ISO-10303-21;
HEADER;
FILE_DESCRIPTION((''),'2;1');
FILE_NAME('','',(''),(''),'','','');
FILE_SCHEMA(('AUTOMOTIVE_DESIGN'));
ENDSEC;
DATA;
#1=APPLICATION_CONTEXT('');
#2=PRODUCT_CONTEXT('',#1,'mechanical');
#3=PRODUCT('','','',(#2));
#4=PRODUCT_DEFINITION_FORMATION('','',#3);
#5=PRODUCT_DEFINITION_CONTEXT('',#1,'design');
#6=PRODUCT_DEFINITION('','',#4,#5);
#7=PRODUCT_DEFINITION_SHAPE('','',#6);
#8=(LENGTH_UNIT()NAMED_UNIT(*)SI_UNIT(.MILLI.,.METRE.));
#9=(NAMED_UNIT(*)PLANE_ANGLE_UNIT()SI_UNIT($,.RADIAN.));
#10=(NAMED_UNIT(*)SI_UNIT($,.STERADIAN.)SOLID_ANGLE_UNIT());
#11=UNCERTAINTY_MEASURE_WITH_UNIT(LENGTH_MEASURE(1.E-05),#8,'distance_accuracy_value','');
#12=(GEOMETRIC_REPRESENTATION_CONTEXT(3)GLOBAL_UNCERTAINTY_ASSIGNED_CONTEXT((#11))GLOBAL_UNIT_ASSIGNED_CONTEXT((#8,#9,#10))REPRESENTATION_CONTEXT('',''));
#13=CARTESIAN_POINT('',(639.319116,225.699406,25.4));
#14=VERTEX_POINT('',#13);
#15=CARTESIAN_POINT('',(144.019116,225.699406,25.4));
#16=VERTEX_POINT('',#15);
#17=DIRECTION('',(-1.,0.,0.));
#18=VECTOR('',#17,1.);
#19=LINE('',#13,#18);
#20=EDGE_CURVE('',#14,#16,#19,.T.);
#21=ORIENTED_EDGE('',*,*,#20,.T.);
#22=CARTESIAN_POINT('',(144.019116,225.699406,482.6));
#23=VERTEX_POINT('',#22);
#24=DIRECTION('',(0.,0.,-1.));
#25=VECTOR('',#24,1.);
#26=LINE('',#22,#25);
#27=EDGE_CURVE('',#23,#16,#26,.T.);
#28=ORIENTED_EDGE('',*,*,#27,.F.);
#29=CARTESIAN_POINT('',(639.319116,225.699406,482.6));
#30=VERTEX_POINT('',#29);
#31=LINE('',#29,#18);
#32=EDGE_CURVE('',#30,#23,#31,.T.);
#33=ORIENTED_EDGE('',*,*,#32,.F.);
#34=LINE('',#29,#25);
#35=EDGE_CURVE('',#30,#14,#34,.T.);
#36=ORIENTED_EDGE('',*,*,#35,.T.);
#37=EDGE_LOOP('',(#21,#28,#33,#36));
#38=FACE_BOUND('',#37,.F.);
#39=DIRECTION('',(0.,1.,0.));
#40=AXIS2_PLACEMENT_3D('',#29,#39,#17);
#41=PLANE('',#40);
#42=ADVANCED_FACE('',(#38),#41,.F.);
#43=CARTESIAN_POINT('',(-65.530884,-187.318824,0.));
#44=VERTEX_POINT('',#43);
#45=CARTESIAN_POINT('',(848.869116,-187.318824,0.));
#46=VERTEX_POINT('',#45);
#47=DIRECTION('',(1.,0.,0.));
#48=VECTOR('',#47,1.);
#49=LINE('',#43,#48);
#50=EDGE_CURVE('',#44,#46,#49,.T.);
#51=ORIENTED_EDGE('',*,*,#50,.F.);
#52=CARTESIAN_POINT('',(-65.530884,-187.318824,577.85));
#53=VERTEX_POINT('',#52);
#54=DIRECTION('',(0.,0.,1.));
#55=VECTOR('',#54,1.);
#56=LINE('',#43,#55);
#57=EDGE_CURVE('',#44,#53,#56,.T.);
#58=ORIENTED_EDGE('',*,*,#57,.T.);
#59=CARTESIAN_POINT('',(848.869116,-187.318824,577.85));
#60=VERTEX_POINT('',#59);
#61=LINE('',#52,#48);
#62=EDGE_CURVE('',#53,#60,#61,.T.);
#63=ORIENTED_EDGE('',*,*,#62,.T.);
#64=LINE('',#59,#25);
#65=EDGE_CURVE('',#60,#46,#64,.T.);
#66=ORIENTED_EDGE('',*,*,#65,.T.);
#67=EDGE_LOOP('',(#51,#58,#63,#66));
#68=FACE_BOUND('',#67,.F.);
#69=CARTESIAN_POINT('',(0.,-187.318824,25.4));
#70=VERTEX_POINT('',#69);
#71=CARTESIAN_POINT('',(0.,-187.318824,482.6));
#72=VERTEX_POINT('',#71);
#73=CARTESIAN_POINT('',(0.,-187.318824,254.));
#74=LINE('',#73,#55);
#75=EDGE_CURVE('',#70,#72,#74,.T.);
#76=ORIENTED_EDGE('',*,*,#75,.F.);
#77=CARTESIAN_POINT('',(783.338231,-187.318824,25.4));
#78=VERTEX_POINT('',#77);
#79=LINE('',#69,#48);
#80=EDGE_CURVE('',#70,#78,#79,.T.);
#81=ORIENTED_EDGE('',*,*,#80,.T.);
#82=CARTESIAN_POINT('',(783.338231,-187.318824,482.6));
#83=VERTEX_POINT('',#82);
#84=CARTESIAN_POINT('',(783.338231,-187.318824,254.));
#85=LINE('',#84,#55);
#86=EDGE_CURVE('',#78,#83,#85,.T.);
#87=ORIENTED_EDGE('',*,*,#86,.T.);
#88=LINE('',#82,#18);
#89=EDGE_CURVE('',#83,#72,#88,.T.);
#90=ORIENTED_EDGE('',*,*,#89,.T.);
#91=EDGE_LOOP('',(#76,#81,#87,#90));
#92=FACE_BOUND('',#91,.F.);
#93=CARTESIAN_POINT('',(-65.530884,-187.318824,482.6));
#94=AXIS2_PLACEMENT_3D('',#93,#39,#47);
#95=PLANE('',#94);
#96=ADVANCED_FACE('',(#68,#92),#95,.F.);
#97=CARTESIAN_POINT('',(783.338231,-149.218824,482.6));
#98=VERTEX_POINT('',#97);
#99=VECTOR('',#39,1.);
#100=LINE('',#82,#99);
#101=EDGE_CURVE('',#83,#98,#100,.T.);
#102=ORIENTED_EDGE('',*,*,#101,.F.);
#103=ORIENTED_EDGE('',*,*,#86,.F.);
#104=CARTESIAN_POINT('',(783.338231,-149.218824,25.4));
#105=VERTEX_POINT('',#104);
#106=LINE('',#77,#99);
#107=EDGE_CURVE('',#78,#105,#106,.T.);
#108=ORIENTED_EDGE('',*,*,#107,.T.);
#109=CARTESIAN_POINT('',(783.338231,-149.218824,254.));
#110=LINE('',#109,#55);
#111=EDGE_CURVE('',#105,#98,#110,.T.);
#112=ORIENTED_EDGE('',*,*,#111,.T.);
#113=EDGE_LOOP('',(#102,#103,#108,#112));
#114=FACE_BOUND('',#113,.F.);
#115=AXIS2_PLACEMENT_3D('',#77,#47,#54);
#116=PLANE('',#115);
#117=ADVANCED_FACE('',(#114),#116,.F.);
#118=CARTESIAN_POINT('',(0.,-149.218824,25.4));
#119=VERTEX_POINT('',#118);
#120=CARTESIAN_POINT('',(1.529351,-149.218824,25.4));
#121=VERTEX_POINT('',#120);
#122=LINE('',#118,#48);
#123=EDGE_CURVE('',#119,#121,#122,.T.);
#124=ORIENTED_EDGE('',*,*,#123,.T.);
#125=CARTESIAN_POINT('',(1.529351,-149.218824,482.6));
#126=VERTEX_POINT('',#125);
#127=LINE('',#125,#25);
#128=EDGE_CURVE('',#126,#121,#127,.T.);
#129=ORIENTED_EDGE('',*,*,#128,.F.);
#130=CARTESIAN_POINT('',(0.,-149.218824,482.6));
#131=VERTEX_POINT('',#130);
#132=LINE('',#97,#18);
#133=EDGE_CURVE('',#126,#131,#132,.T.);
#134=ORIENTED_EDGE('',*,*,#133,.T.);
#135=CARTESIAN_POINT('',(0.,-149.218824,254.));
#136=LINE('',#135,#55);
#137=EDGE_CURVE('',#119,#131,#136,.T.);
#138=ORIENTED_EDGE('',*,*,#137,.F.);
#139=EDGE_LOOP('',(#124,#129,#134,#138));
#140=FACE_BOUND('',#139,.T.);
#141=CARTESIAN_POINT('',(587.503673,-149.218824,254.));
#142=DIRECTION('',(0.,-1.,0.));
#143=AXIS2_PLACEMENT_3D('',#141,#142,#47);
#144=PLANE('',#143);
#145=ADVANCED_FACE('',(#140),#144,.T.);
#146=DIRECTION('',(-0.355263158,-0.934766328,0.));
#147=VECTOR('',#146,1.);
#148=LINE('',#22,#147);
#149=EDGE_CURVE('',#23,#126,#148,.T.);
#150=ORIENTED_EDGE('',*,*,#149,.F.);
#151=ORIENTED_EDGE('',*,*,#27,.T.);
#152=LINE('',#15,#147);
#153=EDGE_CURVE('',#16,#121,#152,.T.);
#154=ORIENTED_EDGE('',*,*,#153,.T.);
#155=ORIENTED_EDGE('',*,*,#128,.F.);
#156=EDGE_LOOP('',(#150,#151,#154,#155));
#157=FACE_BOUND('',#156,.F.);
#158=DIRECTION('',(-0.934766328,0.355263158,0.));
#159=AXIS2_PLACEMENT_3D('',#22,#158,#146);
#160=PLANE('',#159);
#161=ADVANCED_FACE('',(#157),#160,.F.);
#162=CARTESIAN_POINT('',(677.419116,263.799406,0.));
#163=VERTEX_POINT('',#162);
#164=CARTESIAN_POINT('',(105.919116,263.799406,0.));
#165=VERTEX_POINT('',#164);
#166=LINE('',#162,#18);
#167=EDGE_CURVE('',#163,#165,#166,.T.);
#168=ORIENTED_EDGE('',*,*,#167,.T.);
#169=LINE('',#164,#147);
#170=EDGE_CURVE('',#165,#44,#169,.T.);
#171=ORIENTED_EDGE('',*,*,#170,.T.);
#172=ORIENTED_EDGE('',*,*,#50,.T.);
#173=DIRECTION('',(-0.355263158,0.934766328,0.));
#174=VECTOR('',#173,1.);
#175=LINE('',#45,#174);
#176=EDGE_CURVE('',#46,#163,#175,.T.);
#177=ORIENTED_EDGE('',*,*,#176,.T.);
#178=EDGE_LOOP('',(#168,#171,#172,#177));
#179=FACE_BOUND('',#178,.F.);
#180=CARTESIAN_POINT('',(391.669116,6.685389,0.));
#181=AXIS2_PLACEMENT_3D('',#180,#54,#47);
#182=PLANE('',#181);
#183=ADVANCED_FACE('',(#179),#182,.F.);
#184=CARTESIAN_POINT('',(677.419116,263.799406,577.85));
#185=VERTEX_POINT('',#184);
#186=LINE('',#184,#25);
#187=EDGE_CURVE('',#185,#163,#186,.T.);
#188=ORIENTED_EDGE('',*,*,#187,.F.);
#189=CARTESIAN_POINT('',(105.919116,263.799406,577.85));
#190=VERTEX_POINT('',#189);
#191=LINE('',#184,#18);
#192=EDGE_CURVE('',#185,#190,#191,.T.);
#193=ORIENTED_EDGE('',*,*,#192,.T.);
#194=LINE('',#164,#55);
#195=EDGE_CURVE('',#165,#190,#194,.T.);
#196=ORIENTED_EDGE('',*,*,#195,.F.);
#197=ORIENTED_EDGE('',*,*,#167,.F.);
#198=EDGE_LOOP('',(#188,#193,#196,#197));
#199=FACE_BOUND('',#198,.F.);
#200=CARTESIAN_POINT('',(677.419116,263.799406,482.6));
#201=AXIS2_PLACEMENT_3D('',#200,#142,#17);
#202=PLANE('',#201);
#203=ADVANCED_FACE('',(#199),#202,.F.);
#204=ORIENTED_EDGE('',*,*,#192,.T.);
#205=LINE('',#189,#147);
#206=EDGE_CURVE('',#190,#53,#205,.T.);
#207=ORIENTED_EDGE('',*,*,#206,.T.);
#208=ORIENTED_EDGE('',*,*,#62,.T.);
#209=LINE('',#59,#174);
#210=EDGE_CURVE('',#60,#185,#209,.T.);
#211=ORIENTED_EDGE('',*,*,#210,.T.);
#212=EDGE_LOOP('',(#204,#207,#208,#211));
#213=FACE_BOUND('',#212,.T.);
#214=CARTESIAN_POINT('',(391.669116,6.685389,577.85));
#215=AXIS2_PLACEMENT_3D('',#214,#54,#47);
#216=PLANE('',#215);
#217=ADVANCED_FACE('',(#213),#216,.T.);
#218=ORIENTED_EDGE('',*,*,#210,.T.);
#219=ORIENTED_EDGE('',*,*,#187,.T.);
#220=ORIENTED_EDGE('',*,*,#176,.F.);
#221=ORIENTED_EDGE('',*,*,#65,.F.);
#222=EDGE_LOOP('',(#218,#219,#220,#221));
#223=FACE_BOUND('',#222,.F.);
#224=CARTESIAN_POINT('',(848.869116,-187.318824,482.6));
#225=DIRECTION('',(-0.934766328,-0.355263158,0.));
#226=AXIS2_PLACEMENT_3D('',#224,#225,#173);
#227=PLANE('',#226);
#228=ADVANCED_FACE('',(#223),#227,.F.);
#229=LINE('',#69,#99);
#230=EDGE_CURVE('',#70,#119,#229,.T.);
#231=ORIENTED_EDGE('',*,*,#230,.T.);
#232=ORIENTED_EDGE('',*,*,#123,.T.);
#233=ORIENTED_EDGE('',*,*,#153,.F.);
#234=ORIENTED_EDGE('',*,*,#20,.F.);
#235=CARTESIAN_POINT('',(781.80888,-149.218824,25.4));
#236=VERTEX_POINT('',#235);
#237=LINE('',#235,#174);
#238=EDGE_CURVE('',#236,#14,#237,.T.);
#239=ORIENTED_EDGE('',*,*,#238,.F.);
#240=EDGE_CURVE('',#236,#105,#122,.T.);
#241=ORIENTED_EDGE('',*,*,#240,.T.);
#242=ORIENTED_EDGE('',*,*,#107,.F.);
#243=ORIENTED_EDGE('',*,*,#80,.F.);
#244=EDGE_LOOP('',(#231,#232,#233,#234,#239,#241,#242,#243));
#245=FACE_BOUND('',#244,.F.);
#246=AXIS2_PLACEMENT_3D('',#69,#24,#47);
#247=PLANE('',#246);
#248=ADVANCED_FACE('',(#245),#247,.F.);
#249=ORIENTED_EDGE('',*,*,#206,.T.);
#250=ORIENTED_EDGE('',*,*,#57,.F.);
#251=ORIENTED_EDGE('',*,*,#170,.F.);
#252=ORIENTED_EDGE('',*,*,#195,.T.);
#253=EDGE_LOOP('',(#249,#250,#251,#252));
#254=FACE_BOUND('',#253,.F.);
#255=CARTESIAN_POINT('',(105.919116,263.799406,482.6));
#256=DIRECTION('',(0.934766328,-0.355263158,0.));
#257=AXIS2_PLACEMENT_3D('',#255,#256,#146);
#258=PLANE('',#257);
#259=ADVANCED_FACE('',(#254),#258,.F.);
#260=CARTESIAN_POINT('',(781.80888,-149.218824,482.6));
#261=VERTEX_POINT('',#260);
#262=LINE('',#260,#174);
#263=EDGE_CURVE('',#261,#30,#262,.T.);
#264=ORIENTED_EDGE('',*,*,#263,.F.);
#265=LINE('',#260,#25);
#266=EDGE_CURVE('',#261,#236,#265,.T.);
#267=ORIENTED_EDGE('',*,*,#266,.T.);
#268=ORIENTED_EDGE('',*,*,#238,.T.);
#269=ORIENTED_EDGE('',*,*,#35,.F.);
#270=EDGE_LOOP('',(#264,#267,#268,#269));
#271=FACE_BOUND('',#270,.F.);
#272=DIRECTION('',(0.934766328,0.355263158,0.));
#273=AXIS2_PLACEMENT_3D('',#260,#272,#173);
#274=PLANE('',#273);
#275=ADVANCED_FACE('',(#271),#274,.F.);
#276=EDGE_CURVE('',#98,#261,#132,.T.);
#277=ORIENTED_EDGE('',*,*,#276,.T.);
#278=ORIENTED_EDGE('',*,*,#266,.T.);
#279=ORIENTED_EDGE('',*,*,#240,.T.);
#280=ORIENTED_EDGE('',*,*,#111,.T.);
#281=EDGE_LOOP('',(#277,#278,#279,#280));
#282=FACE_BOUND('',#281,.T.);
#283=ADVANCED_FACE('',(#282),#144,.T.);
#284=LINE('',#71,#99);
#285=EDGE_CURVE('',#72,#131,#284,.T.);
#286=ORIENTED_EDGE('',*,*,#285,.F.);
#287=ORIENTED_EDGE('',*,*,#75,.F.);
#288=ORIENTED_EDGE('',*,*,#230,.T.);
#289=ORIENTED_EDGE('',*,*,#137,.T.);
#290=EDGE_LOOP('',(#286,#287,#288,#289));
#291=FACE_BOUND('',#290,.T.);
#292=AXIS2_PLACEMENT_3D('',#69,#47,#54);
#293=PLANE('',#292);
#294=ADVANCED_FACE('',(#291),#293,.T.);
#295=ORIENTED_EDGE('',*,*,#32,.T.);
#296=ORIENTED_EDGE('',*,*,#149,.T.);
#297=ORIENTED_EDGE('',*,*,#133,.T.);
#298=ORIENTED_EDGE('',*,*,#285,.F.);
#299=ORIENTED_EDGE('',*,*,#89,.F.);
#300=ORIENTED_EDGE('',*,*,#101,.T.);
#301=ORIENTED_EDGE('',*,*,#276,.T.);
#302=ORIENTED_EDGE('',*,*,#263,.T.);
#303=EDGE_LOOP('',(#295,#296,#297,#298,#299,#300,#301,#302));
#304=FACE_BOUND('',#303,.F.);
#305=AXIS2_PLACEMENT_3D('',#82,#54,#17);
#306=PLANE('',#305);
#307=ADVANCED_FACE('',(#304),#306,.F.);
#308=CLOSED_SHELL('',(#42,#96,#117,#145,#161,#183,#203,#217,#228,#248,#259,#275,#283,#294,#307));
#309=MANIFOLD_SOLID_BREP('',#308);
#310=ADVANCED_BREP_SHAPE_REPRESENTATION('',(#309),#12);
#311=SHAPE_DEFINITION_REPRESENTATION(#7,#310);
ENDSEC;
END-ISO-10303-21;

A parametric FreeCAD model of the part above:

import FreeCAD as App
import Part
import Sketcher

V = App.Vector
Q = App.Units.Quantity

doc = App.newDocument("Part")
body = doc.addObject("PartDesign::Body", "Body")

# Sketch on XY plane
sketch1 = body.newObject("Sketcher::SketchObject", "Sketch")
sketch1.AttachmentSupport = (doc.getObject("XY_Plane"), [""])
sketch1.MapMode = "FlatFace"
sketch1.addGeometry(Part.LineSegment(V(849, -187, 0), V(677, 264, 0)), False)
sketch1.addGeometry(Part.LineSegment(V(677, 264, 0), V(106, 264, 0)), False)
sketch1.addGeometry(Part.LineSegment(V(106, 264, 0), V(-66, -187, 0)), False)
sketch1.addGeometry(Part.LineSegment(V(-66, -187, 0), V(849, -187, 0)), False)
sketch1.addConstraint(Sketcher.Constraint("Coincident", 0, 2, 1, 1))
sketch1.addConstraint(Sketcher.Constraint("Coincident", 1, 2, 2, 1))
sketch1.addConstraint(Sketcher.Constraint("Coincident", 2, 2, 3, 1))
sketch1.addConstraint(Sketcher.Constraint("Coincident", 3, 2, 0, 1))
sketch1.addConstraint(Sketcher.Constraint("Horizontal", 1))
sketch1.addConstraint(Sketcher.Constraint("Horizontal", 3))
sketch1.addConstraint(Sketcher.Constraint("Equal", 0, 2))
sketch1.addConstraint(Sketcher.Constraint("DistanceX", 3, 1, 3, 2, Q("36 in")))
sketch1.addConstraint(Sketcher.Constraint("Distance", 0, Q("19 in")))
sketch1.addConstraint(Sketcher.Constraint("DistanceX", 1, 2, 1, 1, Q("22.5 in")))
sketch1.addConstraint(Sketcher.Constraint("DistanceX", -1, 1, 0, 2, 677.419116))
sketch1.addConstraint(Sketcher.Constraint("DistanceY", -1, 1, 0, 2, 263.799406))
pad1 = body.newObject("PartDesign::Pad", "Pad")
pad1.Profile = sketch1
pad1.Length = Q("19 in")

# Sketch on XY plane
sketch2 = body.newObject("Sketcher::SketchObject", "Sketch001")
sketch2.AttachmentSupport = (doc.getObject("XY_Plane"), [""])
sketch2.MapMode = "FlatFace"
sketch2.AttachmentOffset = App.Placement(V(0, 0, 19 * 25.4), App.Rotation())
sketch2.addGeometry(Part.LineSegment(V(677, 264, 0), V(106, 264, 0)), False)
sketch2.addGeometry(Part.LineSegment(V(106, 264, 0), V(-66, -187, 0)), False)
sketch2.addGeometry(Part.LineSegment(V(-66, -187, 0), V(849, -187, 0)), False)
sketch2.addGeometry(Part.LineSegment(V(849, -187, 0), V(677, 264, 0)), False)
sketch2.addConstraint(Sketcher.Constraint("Coincident", 0, 2, 1, 1))
sketch2.addConstraint(Sketcher.Constraint("Coincident", 1, 2, 2, 1))
sketch2.addConstraint(Sketcher.Constraint("Coincident", 2, 2, 3, 1))
sketch2.addConstraint(Sketcher.Constraint("Coincident", 3, 2, 0, 1))
sketch2.addConstraint(Sketcher.Constraint("Horizontal", 0))
sketch2.addConstraint(Sketcher.Constraint("Horizontal", 2))
sketch2.addConstraint(Sketcher.Constraint("Equal", 1, 3))
sketch2.addConstraint(Sketcher.Constraint("DistanceX", 2, 1, 2, 2, Q("36 in")))
sketch2.addConstraint(Sketcher.Constraint("Distance", 1, Q("19 in")))
sketch2.addConstraint(Sketcher.Constraint("DistanceX", 0, 2, 0, 1, Q("22.5 in")))
sketch2.addConstraint(Sketcher.Constraint("DistanceX", -1, 1, 0, 2, 105.919116))
sketch2.addConstraint(Sketcher.Constraint("DistanceY", -1, 1, 0, 2, 263.799406))
pad2 = body.newObject("PartDesign::Pad", "Pad001")
pad2.Profile = sketch2
pad2.Length = Q("3.75 in")

# Sketch on XY plane
sketch3 = body.newObject("Sketcher::SketchObject", "Sketch002")
sketch3.AttachmentSupport = (doc.getObject("XY_Plane"), [""])
sketch3.MapMode = "FlatFace"
sketch3.AttachmentOffset = App.Placement(V(0, 0, 19 * 25.4), App.Rotation())
sketch3.addGeometry(Part.LineSegment(V(782, -149, 0), V(639, 226, 0)), False)
sketch3.addGeometry(Part.LineSegment(V(639, 226, 0), V(144, 226, 0)), False)
sketch3.addGeometry(Part.LineSegment(V(144, 226, 0), V(2, -149, 0)), False)
sketch3.addGeometry(Part.LineSegment(V(2, -149, 0), V(782, -149, 0)), False)
sketch3.addConstraint(Sketcher.Constraint("Coincident", 0, 2, 1, 1))
sketch3.addConstraint(Sketcher.Constraint("Coincident", 1, 2, 2, 1))
sketch3.addConstraint(Sketcher.Constraint("Coincident", 2, 2, 3, 1))
sketch3.addConstraint(Sketcher.Constraint("Coincident", 3, 2, 0, 1))
sketch3.addConstraint(Sketcher.Constraint("Horizontal", 1))
sketch3.addConstraint(Sketcher.Constraint("Horizontal", 3))
sketch3.addConstraint(Sketcher.Constraint("Equal", 0, 2))
sketch3.addConstraint(Sketcher.Constraint("DistanceX", 1, 2, 1, 1, Q("19.5 in")))
sketch3.addConstraint(Sketcher.Constraint("Distance", 0, 401.082301))
sketch3.addConstraint(Sketcher.Constraint("DistanceX", 3, 1, 3, 2, 780.27953))
sketch3.addConstraint(Sketcher.Constraint("DistanceX", -1, 1, 2, 2, 1.529351))
sketch3.addConstraint(Sketcher.Constraint("DistanceY", -1, 1, 0, 2, 225.699406))
pocket1 = body.newObject("PartDesign::Pocket", "Pocket")
pocket1.Profile = sketch3
pocket1.Length = Q("18 in")

# Sketch on XZ plane
sketch4 = body.newObject("Sketcher::SketchObject", "Sketch003")
sketch4.AttachmentSupport = (doc.getObject("XZ_Plane"), [""])
sketch4.MapMode = "FlatFace"
sketch4.AttachmentOffset = App.Placement(V(0, 0, 187.318824), App.Rotation())
sketch4.addGeometry(Part.LineSegment(V(783, 25, 0), V(783, 483, 0)), False)
sketch4.addGeometry(Part.LineSegment(V(783, 483, 0), V(0, 483, 0)), False)
sketch4.addGeometry(Part.LineSegment(V(0, 483, 0), V(0, 25, 0)), False)
sketch4.addGeometry(Part.LineSegment(V(0, 25, 0), V(783, 25, 0)), False)
sketch4.addConstraint(Sketcher.Constraint("Coincident", 0, 2, 1, 1))
sketch4.addConstraint(Sketcher.Constraint("Coincident", 1, 2, 2, 1))
sketch4.addConstraint(Sketcher.Constraint("Coincident", 2, 2, 3, 1))
sketch4.addConstraint(Sketcher.Constraint("Coincident", 3, 2, 0, 1))
sketch4.addConstraint(Sketcher.Constraint("Vertical", 0))
sketch4.addConstraint(Sketcher.Constraint("Horizontal", 1))
sketch4.addConstraint(Sketcher.Constraint("Vertical", 2))
sketch4.addConstraint(Sketcher.Constraint("Horizontal", 3))
sketch4.addConstraint(Sketcher.Constraint("PointOnObject", 1, 2, -2))
sketch4.addConstraint(Sketcher.Constraint("DistanceY", 0, 1, 0, 2, Q("18 in")))
sketch4.addConstraint(Sketcher.Constraint("DistanceY", -1, 1, 0, 2, Q("19 in")))
sketch4.addConstraint(Sketcher.Constraint("DistanceX", 1, 2, 1, 1, 783.338231))
pocket2 = body.newObject("PartDesign::Pocket", "Pocket001")
pocket2.Profile = sketch4
pocket2.Length = Q("1.5 in")

doc.recompute()
